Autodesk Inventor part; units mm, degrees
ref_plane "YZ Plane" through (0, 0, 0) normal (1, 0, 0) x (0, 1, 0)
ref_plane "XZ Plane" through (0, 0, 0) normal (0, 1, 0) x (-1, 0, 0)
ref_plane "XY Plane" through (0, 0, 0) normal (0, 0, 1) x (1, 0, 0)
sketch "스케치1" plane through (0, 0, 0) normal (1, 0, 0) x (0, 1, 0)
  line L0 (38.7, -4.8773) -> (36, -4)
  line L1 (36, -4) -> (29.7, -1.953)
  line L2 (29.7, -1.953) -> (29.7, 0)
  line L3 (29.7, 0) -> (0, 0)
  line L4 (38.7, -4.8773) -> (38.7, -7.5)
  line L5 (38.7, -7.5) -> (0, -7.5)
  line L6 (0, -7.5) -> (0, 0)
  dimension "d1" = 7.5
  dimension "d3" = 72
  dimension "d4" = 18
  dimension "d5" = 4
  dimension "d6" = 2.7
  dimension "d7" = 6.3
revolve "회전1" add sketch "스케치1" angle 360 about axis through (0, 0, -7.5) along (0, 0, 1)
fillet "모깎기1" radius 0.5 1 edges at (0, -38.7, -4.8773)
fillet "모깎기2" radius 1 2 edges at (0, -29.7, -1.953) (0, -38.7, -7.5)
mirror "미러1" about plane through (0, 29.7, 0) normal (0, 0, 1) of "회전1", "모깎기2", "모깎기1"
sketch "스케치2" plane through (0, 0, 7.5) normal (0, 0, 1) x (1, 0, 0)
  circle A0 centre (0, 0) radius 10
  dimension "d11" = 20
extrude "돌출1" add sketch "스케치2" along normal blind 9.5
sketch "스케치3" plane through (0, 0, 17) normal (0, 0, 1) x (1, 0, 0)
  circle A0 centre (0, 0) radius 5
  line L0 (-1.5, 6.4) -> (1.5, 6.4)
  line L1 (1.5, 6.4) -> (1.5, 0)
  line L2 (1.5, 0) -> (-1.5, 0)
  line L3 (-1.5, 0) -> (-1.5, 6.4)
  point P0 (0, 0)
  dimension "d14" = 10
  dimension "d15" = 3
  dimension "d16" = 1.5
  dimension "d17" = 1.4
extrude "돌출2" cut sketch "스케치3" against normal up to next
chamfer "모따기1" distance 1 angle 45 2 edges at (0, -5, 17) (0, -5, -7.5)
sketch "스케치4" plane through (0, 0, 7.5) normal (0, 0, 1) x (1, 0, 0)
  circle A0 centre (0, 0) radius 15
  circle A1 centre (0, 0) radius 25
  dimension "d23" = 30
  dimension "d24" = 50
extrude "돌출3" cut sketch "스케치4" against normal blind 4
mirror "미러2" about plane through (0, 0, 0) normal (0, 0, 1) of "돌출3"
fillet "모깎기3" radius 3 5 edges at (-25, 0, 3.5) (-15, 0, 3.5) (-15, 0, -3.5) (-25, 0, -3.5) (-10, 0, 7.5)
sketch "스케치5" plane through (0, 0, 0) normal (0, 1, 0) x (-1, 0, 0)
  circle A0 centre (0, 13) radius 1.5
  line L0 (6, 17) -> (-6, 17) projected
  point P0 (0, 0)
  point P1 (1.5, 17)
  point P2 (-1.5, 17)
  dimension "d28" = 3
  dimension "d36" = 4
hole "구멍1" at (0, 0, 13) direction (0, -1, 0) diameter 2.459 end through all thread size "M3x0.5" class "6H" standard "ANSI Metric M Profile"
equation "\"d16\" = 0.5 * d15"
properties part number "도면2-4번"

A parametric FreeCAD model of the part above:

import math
import FreeCAD as App
import Part
import Sketcher

V = App.Vector
Q = App.Units.Quantity


def edges_at(feature, points):
    """Names of the edges that pass closest to the given points."""
    edges = feature.Shape.Edges
    near = lambda p: min(range(len(edges)), key=lambda i: edges[i].distToShape(Part.Vertex(*p))[0])
    return sorted({f"Edge{near(p) + 1}" for p in points})


def add_polygon(sketch, points):
    """Adds a closed chain of lines whose ends are joined by coincident constraints."""
    first, n = sketch.GeometryCount, len(points)
    for a, b in zip(points, points[1:] + points[:1]):
        sketch.addGeometry(Part.LineSegment(App.Vector(*a, 0), App.Vector(*b, 0)), False)
    for i in range(n):
        sketch.addConstraint(Sketcher.Constraint("Coincident", first + i, 2, first + (i + 1) % n, 1))

doc = App.newDocument("Part")
body = doc.addObject("PartDesign::Body", "Body")

# Sketch on YZ plane
sketch1 = doc.addObject("Sketcher::SketchObject", "Sketch")
body.addObject(sketch1)
sketch1.AttachmentSupport = (doc.YZ_Plane, [""])
sketch1.MapMode = "FlatFace"
add_polygon(sketch1, [(38.7, -7.5), (38.7, -4.9), (36, -4), (29.7, -2), (29.7, 0), (0, 0), (0, -7.5)])  # lines 0-6
sketch1.addConstraint([
    Sketcher.Constraint("Vertical", 0),
    Sketcher.Constraint("Vertical", 3),
    Sketcher.Constraint("Horizontal", 4),
    Sketcher.Constraint("Vertical", 5),
    Sketcher.Constraint("Horizontal", 6),
    Sketcher.Constraint("Coincident", 4, 2, -1, 1),
    Sketcher.Constraint("Parallel", 1, 2),
    Sketcher.Constraint("DistanceY", 5, 2, 5, 1, 7.5),
    Sketcher.Constraint("DistanceY", 1, 2, -1, 1, 4.0),
    Sketcher.Constraint("DistanceX", 1, 2, 0, 2, 2.7),
    Sketcher.Constraint("DistanceX", 2, 2, 1, 2, 6.3),
    Sketcher.Constraint("Angle", 1, Q("161.9997 deg")),
    Sketcher.Constraint("DistanceX", 4, 2, 4, 1, 29.7),
])
revolution = doc.addObject("PartDesign::Revolution", "Revolution")
body.addObject(revolution)
revolution.Profile = sketch1
revolution.ReferenceAxis = (sketch1, ["V_Axis"])
revolution.Angle = 360
doc.recompute()

fillet = doc.addObject("PartDesign::Fillet", "Fillet")
body.addObject(fillet)
fillet.Base = (revolution, edges_at(revolution, [(0, -38.7, -4.877)]))
fillet.Radius = 0.5
doc.recompute()

fillet2 = doc.addObject("PartDesign::Fillet", "Fillet001")
body.addObject(fillet2)
fillet2.Base = (fillet, edges_at(fillet, [(0, -29.7, -1.953), (0, -38.7, -7.5)]))
fillet2.Radius = 1
doc.recompute()

mirrored = doc.addObject("PartDesign::Mirrored", "Mirrored")
body.addObject(mirrored)
mirrored.Originals = [revolution, fillet2, fillet]
mirrored.MirrorPlane = (doc.XY_Plane, [""])
body.Tip = mirrored

# Sketch on XY plane
sketch2 = doc.addObject("Sketcher::SketchObject", "Sketch001")
body.addObject(sketch2)
sketch2.AttachmentSupport = (doc.XY_Plane, [""])
sketch2.MapMode = "FlatFace"
sketch2.AttachmentOffset = App.Placement(V(0, 0, 7.5), App.Rotation())
sketch2.addGeometry(Part.Circle(V(0, 0, 0), V(0, 0, 1), 10), False)
sketch2.addConstraint([
    Sketcher.Constraint("Coincident", 0, 3, -1, 1),
    Sketcher.Constraint("Diameter", 0, 20.0),
])
pad1 = doc.addObject("PartDesign::Pad", "Pad")
body.addObject(pad1)
pad1.Profile = sketch2
pad1.Length = 9.5

# Sketch on XY plane
sketch3 = doc.addObject("Sketcher::SketchObject", "Sketch002")
body.addObject(sketch3)
sketch3.AttachmentSupport = (doc.XY_Plane, [""])
sketch3.MapMode = "FlatFace"
sketch3.AttachmentOffset = App.Placement(V(0, 0, 17), App.Rotation())
sketch3.addGeometry([
    Part.ArcOfCircle(Part.Circle(V(0, 0, 0), V(0, 0, 1), 5), math.radians(107), math.radians(433)),
    Part.LineSegment(V(1.5, 4.8, 0), V(1.5, 6.4, 0)),
    Part.LineSegment(V(1.5, 6.4, 0), V(-1.5, 6.4, 0)),
    Part.LineSegment(V(-1.5, 6.4, 0), V(-1.5, 4.8, 0)),
], False)
sketch3.addConstraint([
    Sketcher.Constraint("Coincident", 0, 2, 1, 1),
    Sketcher.Constraint("Coincident", 1, 2, 2, 1),
    Sketcher.Constraint("Coincident", 2, 2, 3, 1),
    Sketcher.Constraint("Coincident", 3, 2, 0, 1),
    Sketcher.Constraint("Vertical", 1),
    Sketcher.Constraint("Horizontal", 2),
    Sketcher.Constraint("Vertical", 3),
    Sketcher.Constraint("Coincident", 0, 3, -1, 1),
    Sketcher.Constraint("Horizontal", 0, 2, 3, 2),
    Sketcher.Constraint("Radius", 0, 5.0),
    Sketcher.Constraint("DistanceX", 2, 2, 2, 1, 3.0),
    Sketcher.Constraint("DistanceY", -1, 1, 1, 2, 6.4),
])
pocket1 = doc.addObject("PartDesign::Pocket", "Pocket")
body.addObject(pocket1)
pocket1.Profile = sketch3
pocket1.Type = "UpToFirst"
doc.recompute()

chamfer = doc.addObject("PartDesign::Chamfer", "Chamfer")
body.addObject(chamfer)
chamfer.Base = (pocket1, edges_at(pocket1, [(0, -5, 17), (0, -5, -7.5)]))
chamfer.Size = 1

# Sketch on XY plane
sketch4 = doc.addObject("Sketcher::SketchObject", "Sketch003")
body.addObject(sketch4)
sketch4.AttachmentSupport = (doc.XY_Plane, [""])
sketch4.MapMode = "FlatFace"
sketch4.AttachmentOffset = App.Placement(V(0, 0, 7.5), App.Rotation())
sketch4.addGeometry([
    Part.Circle(V(0, 0, 0), V(0, 0, 1), 25),
    Part.Circle(V(0, 0, 0), V(0, 0, 1), 15),
], False)
sketch4.addConstraint([
    Sketcher.Constraint("Coincident", 0, 3, -1, 1),
    Sketcher.Constraint("Coincident", 1, 3, -1, 1),
    Sketcher.Constraint("Diameter", 0, 50.0),
    Sketcher.Constraint("Diameter", 1, 30.0),
])
pocket2 = doc.addObject("PartDesign::Pocket", "Pocket001")
body.addObject(pocket2)
pocket2.Profile = sketch4
pocket2.Length = 4
doc.recompute()

mirrored2 = doc.addObject("PartDesign::Mirrored", "Mirrored001")
body.addObject(mirrored2)
mirrored2.Originals = [pocket2]
mirrored2.MirrorPlane = (doc.XY_Plane, [""])
body.Tip = mirrored2
doc.recompute()

fillet3 = doc.addObject("PartDesign::Fillet", "Fillet002")
body.addObject(fillet3)
fillet3.Base = (mirrored2, edges_at(mirrored2, [
    (-25, 0, 3.5),
    (-15, 0, 3.5),
    (-15, 0, -3.5),
    (-25, 0, -3.5),
    (-10, 0, 7.5),
]))
fillet3.Radius = 3

# Sketch on XZ plane
sketch5 = doc.addObject("Sketcher::SketchObject", "Sketch004")
body.addObject(sketch5)
sketch5.AttachmentSupport = (doc.XZ_Plane, [""])
sketch5.MapMode = "FlatFace"
sketch5.addGeometry(Part.Circle(V(0, 13, 0), V(0, 0, 1), 1.2), False)
sketch5.addConstraint([
    Sketcher.Constraint("PointOnObject", 0, 3, -2),
    Sketcher.Constraint("Diameter", 0, 2.459),
    Sketcher.Constraint("DistanceY", -1, 1, 0, 3, 13.0),
])
doc.recompute()
hole = doc.addObject("PartDesign::Hole", "Hole")
body.addObject(hole)
hole.Profile = sketch5
hole.ThreadType = "None"
hole.Diameter = 2.459
hole.DepthType = "ThroughAll"
hole.Reversed = True

doc.recompute()
